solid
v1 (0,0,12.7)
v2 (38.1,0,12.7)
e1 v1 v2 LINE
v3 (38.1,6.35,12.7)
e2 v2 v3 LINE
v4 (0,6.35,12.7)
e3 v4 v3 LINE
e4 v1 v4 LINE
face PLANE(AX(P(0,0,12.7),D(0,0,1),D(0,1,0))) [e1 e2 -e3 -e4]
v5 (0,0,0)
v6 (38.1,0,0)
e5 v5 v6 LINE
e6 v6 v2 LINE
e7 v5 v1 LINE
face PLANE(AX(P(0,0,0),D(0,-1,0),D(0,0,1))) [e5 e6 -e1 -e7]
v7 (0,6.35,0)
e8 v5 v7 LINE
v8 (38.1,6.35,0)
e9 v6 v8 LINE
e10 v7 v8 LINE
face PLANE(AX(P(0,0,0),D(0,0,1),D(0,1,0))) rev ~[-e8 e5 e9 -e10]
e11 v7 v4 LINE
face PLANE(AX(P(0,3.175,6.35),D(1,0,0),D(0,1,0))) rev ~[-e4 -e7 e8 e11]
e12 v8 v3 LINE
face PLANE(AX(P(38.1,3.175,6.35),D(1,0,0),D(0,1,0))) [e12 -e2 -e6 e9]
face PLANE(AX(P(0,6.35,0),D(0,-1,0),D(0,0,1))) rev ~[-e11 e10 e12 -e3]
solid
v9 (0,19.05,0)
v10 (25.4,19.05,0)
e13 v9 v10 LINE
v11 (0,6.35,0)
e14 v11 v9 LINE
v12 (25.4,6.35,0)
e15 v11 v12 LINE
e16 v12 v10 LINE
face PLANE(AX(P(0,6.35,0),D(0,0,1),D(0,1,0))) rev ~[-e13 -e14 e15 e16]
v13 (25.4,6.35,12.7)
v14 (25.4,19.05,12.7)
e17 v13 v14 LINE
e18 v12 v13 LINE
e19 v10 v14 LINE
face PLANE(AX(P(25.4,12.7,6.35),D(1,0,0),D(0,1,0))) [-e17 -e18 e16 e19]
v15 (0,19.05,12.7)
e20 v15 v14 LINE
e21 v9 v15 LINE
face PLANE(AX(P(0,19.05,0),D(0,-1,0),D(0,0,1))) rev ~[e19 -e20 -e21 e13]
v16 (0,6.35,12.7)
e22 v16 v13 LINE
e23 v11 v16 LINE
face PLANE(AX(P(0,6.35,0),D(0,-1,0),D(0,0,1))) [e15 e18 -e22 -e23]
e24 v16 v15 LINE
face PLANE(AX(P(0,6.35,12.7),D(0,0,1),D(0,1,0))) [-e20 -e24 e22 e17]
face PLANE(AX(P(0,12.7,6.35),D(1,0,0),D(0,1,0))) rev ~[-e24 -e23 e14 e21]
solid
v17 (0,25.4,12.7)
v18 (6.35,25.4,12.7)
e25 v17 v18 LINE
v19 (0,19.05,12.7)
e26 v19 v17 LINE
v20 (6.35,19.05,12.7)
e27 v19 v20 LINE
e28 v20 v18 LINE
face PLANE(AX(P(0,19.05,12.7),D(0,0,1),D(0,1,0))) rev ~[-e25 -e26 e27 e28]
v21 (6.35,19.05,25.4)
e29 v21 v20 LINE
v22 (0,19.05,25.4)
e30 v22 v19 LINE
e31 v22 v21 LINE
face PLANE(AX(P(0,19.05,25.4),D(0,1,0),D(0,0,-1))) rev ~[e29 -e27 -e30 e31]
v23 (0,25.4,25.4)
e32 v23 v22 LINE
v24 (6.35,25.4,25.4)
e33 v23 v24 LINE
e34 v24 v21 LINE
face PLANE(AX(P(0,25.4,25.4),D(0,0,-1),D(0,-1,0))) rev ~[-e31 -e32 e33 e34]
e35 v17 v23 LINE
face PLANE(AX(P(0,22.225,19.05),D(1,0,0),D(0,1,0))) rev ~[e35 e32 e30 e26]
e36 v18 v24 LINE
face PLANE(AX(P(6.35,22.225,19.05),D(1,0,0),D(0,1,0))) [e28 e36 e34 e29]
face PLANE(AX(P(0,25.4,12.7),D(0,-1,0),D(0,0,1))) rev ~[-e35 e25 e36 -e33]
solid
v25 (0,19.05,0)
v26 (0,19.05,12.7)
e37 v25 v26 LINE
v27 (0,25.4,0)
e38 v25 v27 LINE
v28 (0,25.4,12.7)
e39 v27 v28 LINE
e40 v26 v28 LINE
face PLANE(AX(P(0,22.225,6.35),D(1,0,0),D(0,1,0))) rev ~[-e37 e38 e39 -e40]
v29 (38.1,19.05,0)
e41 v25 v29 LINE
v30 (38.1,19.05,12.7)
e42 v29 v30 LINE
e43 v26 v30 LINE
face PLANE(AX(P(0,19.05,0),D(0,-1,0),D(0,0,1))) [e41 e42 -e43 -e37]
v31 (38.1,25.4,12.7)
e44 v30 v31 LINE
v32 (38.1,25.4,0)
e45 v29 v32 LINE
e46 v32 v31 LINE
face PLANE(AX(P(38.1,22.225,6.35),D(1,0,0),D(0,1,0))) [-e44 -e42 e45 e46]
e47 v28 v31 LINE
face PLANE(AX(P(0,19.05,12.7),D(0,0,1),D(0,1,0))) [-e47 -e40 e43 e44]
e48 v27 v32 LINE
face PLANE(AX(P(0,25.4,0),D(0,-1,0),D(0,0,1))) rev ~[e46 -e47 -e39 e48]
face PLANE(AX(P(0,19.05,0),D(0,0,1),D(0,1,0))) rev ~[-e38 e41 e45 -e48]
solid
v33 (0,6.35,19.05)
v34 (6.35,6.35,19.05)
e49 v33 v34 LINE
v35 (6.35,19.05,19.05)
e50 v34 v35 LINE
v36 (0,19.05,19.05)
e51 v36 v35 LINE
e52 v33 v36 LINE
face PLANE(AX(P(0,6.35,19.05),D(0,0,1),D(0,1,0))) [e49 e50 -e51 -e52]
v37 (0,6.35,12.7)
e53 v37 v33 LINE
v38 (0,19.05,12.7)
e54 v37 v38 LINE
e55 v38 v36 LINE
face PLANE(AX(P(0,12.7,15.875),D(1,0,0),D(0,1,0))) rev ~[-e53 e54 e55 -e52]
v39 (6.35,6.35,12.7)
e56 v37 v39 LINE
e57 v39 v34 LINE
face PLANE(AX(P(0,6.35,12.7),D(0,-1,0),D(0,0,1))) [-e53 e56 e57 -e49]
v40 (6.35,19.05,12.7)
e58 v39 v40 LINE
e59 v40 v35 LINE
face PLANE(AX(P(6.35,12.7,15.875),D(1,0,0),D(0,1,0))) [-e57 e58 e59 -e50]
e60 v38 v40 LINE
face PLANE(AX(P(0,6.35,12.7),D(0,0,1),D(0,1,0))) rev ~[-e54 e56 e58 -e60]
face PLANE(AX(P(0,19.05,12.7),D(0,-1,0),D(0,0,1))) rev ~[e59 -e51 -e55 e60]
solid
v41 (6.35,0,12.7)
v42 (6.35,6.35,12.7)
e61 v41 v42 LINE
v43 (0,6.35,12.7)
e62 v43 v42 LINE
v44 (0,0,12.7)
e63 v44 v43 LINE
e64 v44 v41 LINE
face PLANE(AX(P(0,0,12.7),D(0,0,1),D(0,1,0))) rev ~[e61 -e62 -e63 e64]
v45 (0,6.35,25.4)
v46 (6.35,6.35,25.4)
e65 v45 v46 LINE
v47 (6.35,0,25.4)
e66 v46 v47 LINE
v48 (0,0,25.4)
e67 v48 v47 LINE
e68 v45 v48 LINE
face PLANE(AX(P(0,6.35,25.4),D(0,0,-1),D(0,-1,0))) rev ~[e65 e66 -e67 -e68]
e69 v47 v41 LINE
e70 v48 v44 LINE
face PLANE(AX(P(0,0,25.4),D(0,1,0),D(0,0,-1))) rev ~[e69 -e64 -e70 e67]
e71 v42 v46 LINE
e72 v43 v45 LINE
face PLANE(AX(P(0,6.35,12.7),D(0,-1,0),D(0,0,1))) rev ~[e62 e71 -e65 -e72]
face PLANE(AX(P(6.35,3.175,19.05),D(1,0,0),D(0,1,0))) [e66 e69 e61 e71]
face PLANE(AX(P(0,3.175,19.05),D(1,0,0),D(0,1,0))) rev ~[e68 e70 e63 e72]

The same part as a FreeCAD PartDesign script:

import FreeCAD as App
import Part
import Sketcher

V = App.Vector
Q = App.Units.Quantity

doc = App.newDocument("Part")
body = doc.addObject("PartDesign::Body", "Body")
body.AllowCompound = True

sketch1 = body.newObject("Sketcher::SketchObject", "Sketch")
sketch1.AttachmentSupport = (doc.getObject("YZ_Plane"), [""])
sketch1.MapMode = "FlatFace"
sketch1.addGeometry(Part.LineSegment(V(0, 13, 0), V(0, 0, 0)), False)
sketch1.addGeometry(Part.LineSegment(V(0, 0, 0), V(6, 0, 0)), False)
sketch1.addGeometry(Part.LineSegment(V(6, 0, 0), V(6, 13, 0)), False)
sketch1.addGeometry(Part.LineSegment(V(6, 13, 0), V(0, 13, 0)), False)
sketch1.addGeometry(Part.LineSegment(V(19, 13, 0), V(19, 0, 0)), False)
sketch1.addGeometry(Part.LineSegment(V(19, 0, 0), V(25, 0, 0)), False)
sketch1.addGeometry(Part.LineSegment(V(25, 0, 0), V(25, 13, 0)), False)
sketch1.addGeometry(Part.LineSegment(V(25, 13, 0), V(19, 13, 0)), False)
sketch1.addConstraint(Sketcher.Constraint("Coincident", 0, 2, 1, 1))
sketch1.addConstraint(Sketcher.Constraint("Coincident", 1, 2, 2, 1))
sketch1.addConstraint(Sketcher.Constraint("Coincident", 2, 2, 3, 1))
sketch1.addConstraint(Sketcher.Constraint("Coincident", 3, 2, 0, 1))
sketch1.addConstraint(Sketcher.Constraint("Coincident", 4, 2, 5, 1))
sketch1.addConstraint(Sketcher.Constraint("Coincident", 5, 2, 6, 1))
sketch1.addConstraint(Sketcher.Constraint("Coincident", 6, 2, 7, 1))
sketch1.addConstraint(Sketcher.Constraint("Coincident", 7, 2, 4, 1))
sketch1.addConstraint(Sketcher.Constraint("Vertical", 0))
sketch1.addConstraint(Sketcher.Constraint("Horizontal", 1))
sketch1.addConstraint(Sketcher.Constraint("Vertical", 2))
sketch1.addConstraint(Sketcher.Constraint("Horizontal", 3))
sketch1.addConstraint(Sketcher.Constraint("Vertical", 4))
sketch1.addConstraint(Sketcher.Constraint("Horizontal", 5))
sketch1.addConstraint(Sketcher.Constraint("Vertical", 6))
sketch1.addConstraint(Sketcher.Constraint("Horizontal", 7))
sketch1.addConstraint(Sketcher.Constraint("Coincident", 0, 2, -1, 1))
sketch1.addConstraint(Sketcher.Constraint("PointOnObject", 4, 2, -1))
sketch1.addConstraint(Sketcher.Constraint("Horizontal", 3, 2, 6, 2))
sketch1.addConstraint(Sketcher.Constraint("Equal", 3, 5))
sketch1.addConstraint(Sketcher.Constraint("DistanceY", 0, 2, 0, 1, Q("0.5 in")))
sketch1.addConstraint(Sketcher.Constraint("DistanceX", -1, 1, 5, 2, Q("1 in")))
sketch1.addConstraint(Sketcher.Constraint("DistanceX", 1, 1, 1, 2, Q("0.25 in")))
pad1 = body.newObject("PartDesign::Pad", "Pad")
pad1.Profile = sketch1
pad1.Length = Q("1.5 in")
body2 = doc.addObject("PartDesign::Body", "Body001")

sketch2 = body2.newObject("Sketcher::SketchObject", "Sketch001")
sketch2.AttachmentSupport = (doc.getObject("YZ_Plane001"), [""])
sketch2.MapMode = "FlatFace"
sketch2.addGeometry(Part.LineSegment(V(6, 13, 0), V(6, 0, 0)), False)
sketch2.addGeometry(Part.LineSegment(V(6, 0, 0), V(19, 0, 0)), False)
sketch2.addGeometry(Part.LineSegment(V(19, 0, 0), V(19, 13, 0)), False)
sketch2.addGeometry(Part.LineSegment(V(19, 13, 0), V(6, 13, 0)), False)
sketch2.addConstraint(Sketcher.Constraint("Coincident", 0, 2, 1, 1))
sketch2.addConstraint(Sketcher.Constraint("Coincident", 1, 2, 2, 1))
sketch2.addConstraint(Sketcher.Constraint("Coincident", 2, 2, 3, 1))
sketch2.addConstraint(Sketcher.Constraint("Coincident", 3, 2, 0, 1))
sketch2.addConstraint(Sketcher.Constraint("Vertical", 0))
sketch2.addConstraint(Sketcher.Constraint("Horizontal", 1))
sketch2.addConstraint(Sketcher.Constraint("Vertical", 2))
sketch2.addConstraint(Sketcher.Constraint("Horizontal", 3))
sketch2.addConstraint(Sketcher.Constraint("PointOnObject", 0, 2, -1))
sketch2.addConstraint(Sketcher.Constraint("Equal", 3, 0))
sketch2.addConstraint(Sketcher.Constraint("DistanceX", 1, 1, 1, 2, Q("0.5 in")))
sketch2.addConstraint(Sketcher.Constraint("DistanceX", -1, 1, 0, 2, Q("0.25 in")))
pad2 = body2.newObject("PartDesign::Pad", "Pad001")
pad2.Profile = sketch2
pad2.Length = Q("1 in")
body3 = doc.addObject("PartDesign::Body", "Body002")
body3.AllowCompound = True

sketch3 = body3.newObject("Sketcher::SketchObject", "Sketch002")
sketch3.AttachmentSupport = (doc.getObject("YZ_Plane002"), [""])
sketch3.MapMode = "FlatFace"
sketch3.addGeometry(Part.LineSegment(V(0, 25, 0), V(0, 13, 0)), False)
sketch3.addGeometry(Part.LineSegment(V(0, 13, 0), V(6, 13, 0)), False)
sketch3.addGeometry(Part.LineSegment(V(6, 13, 0), V(6, 25, 0)), False)
sketch3.addGeometry(Part.LineSegment(V(6, 25, 0), V(0, 25, 0)), False)
sketch3.addGeometry(Part.LineSegment(V(19, 13, 0), V(25, 13, 0)), False)
sketch3.addGeometry(Part.LineSegment(V(25, 13, 0), V(25, 25, 0)), False)
sketch3.addGeometry(Part.LineSegment(V(25, 25, 0), V(19, 25, 0)), False)
sketch3.addGeometry(Part.LineSegment(V(19, 25, 0), V(19, 13, 0)), False)
sketch3.addConstraint(Sketcher.Constraint("Coincident", 0, 2, 1, 1))
sketch3.addConstraint(Sketcher.Constraint("Coincident", 1, 2, 2, 1))
sketch3.addConstraint(Sketcher.Constraint("Coincident", 2, 2, 3, 1))
sketch3.addConstraint(Sketcher.Constraint("Coincident", 3, 2, 0, 1))
sketch3.addConstraint(Sketcher.Constraint("Coincident", 4, 2, 5, 1))
sketch3.addConstraint(Sketcher.Constraint("Coincident", 5, 2, 6, 1))
sketch3.addConstraint(Sketcher.Constraint("Coincident", 6, 2, 7, 1))
sketch3.addConstraint(Sketcher.Constraint("Coincident", 7, 2, 4, 1))
sketch3.addConstraint(Sketcher.Constraint("Vertical", 0))
sketch3.addConstraint(Sketcher.Constraint("Horizontal", 1))
sketch3.addConstraint(Sketcher.Constraint("Vertical", 2))
sketch3.addConstraint(Sketcher.Constraint("Horizontal", 3))
sketch3.addConstraint(Sketcher.Constraint("Horizontal", 4))
sketch3.addConstraint(Sketcher.Constraint("Vertical", 5))
sketch3.addConstraint(Sketcher.Constraint("Horizontal", 6))
sketch3.addConstraint(Sketcher.Constraint("Vertical", 7))
sketch3.addConstraint(Sketcher.Constraint("PointOnObject", 0, 2, -2))
sketch3.addConstraint(Sketcher.Constraint("Horizontal", 1, 2, 4, 2))
sketch3.addConstraint(Sketcher.Constraint("Horizontal", 3, 2, 5, 2))
sketch3.addConstraint(Sketcher.Constraint("Equal", 3, 4))
sketch3.addConstraint(Sketcher.Constraint("DistanceY", 0, 2, 0, 1, Q("0.5 in")))
sketch3.addConstraint(Sketcher.Constraint("DistanceY", -1, 1, 2, 2, Q("1 in")))
sketch3.addConstraint(Sketcher.Constraint("DistanceX", -1, 1, 4, 2, Q("1 in")))
sketch3.addConstraint(Sketcher.Constraint("DistanceX", 1, 1, 1, 2, Q("0.25 in")))
pad3 = body3.newObject("PartDesign::Pad", "Pad002")
pad3.Profile = sketch3
pad3.Length = Q("0.25 in")
body4 = doc.addObject("PartDesign::Body", "Body003")

sketch4 = body4.newObject("Sketcher::SketchObject", "Sketch003")
sketch4.AttachmentSupport = (doc.getObject("YZ_Plane003"), [""])
sketch4.MapMode = "FlatFace"
sketch4.addGeometry(Part.LineSegment(V(6, 19, 0), V(6, 13, 0)), False)
sketch4.addGeometry(Part.LineSegment(V(6, 13, 0), V(19, 13, 0)), False)
sketch4.addGeometry(Part.LineSegment(V(19, 13, 0), V(19, 19, 0)), False)
sketch4.addGeometry(Part.LineSegment(V(19, 19, 0), V(6, 19, 0)), False)
sketch4.addConstraint(Sketcher.Constraint("Coincident", 0, 2, 1, 1))
sketch4.addConstraint(Sketcher.Constraint("Coincident", 1, 2, 2, 1))
sketch4.addConstraint(Sketcher.Constraint("Coincident", 2, 2, 3, 1))
sketch4.addConstraint(Sketcher.Constraint("Coincident", 3, 2, 0, 1))
sketch4.addConstraint(Sketcher.Constraint("Vertical", 0))
sketch4.addConstraint(Sketcher.Constraint("Horizontal", 1))
sketch4.addConstraint(Sketcher.Constraint("Vertical", 2))
sketch4.addConstraint(Sketcher.Constraint("Horizontal", 3))
sketch4.addConstraint(Sketcher.Constraint("DistanceX", 1, 1, 1, 2, Q("0.5 in")))
sketch4.addConstraint(Sketcher.Constraint("DistanceY", 0, 2, 0, 1, Q("0.25 in")))
sketch4.addConstraint(Sketcher.Constraint("DistanceY", -1, 1, 0, 2, Q("0.5 in")))
sketch4.addConstraint(Sketcher.Constraint("DistanceX", -1, 1, 0, 2, Q("0.25 in")))
pad4 = body4.newObject("PartDesign::Pad", "Pad003")
pad4.Profile = sketch4
pad4.Length = Q("0.25 in")

doc.recompute()
